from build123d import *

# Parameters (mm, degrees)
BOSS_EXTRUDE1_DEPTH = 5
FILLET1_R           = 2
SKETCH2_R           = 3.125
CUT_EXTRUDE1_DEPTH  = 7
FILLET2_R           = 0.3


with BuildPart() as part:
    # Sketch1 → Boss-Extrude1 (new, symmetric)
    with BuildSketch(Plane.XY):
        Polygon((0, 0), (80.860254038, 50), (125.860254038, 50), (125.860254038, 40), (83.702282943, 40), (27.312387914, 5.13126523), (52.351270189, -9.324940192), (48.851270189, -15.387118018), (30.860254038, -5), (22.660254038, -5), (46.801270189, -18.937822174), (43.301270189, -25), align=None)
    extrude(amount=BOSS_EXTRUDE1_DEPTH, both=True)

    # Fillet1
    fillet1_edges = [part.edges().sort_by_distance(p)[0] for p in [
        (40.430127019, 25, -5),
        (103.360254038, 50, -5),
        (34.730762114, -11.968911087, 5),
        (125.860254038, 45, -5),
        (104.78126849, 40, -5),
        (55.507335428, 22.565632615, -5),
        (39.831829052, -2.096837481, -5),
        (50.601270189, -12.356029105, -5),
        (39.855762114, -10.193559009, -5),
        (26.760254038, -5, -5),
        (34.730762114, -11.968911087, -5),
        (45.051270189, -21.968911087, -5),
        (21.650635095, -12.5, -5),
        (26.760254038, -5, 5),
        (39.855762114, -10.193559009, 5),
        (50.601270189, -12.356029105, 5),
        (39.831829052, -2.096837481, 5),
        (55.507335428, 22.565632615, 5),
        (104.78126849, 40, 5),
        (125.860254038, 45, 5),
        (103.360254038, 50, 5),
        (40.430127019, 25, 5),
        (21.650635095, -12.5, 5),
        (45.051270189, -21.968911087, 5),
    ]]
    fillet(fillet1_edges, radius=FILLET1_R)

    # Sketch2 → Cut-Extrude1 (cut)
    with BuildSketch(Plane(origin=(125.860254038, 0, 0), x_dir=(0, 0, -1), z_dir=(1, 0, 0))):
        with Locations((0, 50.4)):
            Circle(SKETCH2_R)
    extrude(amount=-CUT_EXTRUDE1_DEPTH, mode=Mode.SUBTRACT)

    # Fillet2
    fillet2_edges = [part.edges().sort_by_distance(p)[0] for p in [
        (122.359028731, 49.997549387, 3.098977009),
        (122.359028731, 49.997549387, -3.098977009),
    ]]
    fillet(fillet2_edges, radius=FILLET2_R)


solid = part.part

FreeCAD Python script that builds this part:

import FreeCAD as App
import Part
import Sketcher
from FreeCAD import Vector
Q = App.Units.Quantity


def edges_at(feature, points):
    """Names of the edges that pass closest to the given points."""
    edges = feature.Shape.Edges
    near = lambda p: min(range(len(edges)), key=lambda i: edges[i].distToShape(Part.Vertex(*p))[0])
    return sorted({f"Edge{near(p) + 1}" for p in points})

doc = App.newDocument("Part")
params = doc.addObject("Spreadsheet::Sheet", "Params")
for row, (alias, value) in enumerate([
    ("sketch1_width", "45 mm"),
    ("sketch1_height", "10 mm"),
    ("sketch1_length", "50 mm"),
    ("sketch1_length2", "7 mm"),
    ("sketch1_width2", "8.2 mm"),
    ("pad1_length", "10 mm"),
    ("fillet_radius", "2 mm"),
    ("sketch2_diameter", "6.25 mm"),
    ("pocket1_length", "7 mm"),
    ("fillet2_radius", "0.3 mm"),
], start=1):
    params.set(f"A{row}", alias)
    params.set(f"B{row}", "=" + value)
    params.setAlias(f"B{row}", alias)

body = doc.addObject("PartDesign::Body", "Body")

# Sketch on XY plane
sketch1 = doc.addObject("Sketcher::SketchObject", "Sketch")
body.addObject(sketch1)
sketch1.AttachmentSupport = (doc.XY_Plane, [""])
sketch1.MapMode = "FlatFace"
sketch1.addGeometry([
    Part.LineSegment(Vector(81, 50, 0), Vector(0, 0, 0)),  # 0
    Part.LineSegment(Vector(0, 0, 0), Vector(43, -25, 0)),  # 1
    Part.LineSegment(Vector(43, -25, 0), Vector(47, -19, 0)),  # 2
    Part.LineSegment(Vector(47, -19, 0), Vector(23, -5, 0)),  # 3
    Part.LineSegment(Vector(23, -5, 0), Vector(31, -5, 0)),  # 4
    Part.LineSegment(Vector(31, -5, 0), Vector(49, -15, 0)),  # 5
    Part.LineSegment(Vector(49, -15, 0), Vector(52, -9, 0)),  # 6
    Part.LineSegment(Vector(52, -9, 0), Vector(27, 5, 0)),  # 7
    Part.LineSegment(Vector(27, 5, 0), Vector(84, 40, 0)),  # 8
    Part.LineSegment(Vector(84, 40, 0), Vector(126, 40, 0)),  # 9
    Part.LineSegment(Vector(126, 40, 0), Vector(126, 50, 0)),  # 10
    Part.LineSegment(Vector(126, 50, 0), Vector(81, 50, 0)),  # 11
], False)
sketch1.addConstraint([
    Sketcher.Constraint("Coincident", 0, 2, 1, 1),
    Sketcher.Constraint("Coincident", 1, 2, 2, 1),
    Sketcher.Constraint("Coincident", 2, 2, 3, 1),
    Sketcher.Constraint("Coincident", 3, 2, 4, 1),
    Sketcher.Constraint("Coincident", 4, 2, 5, 1),
    Sketcher.Constraint("Coincident", 5, 2, 6, 1),
    Sketcher.Constraint("Coincident", 6, 2, 7, 1),
    Sketcher.Constraint("Coincident", 7, 2, 8, 1),
    Sketcher.Constraint("Coincident", 8, 2, 9, 1),
    Sketcher.Constraint("Coincident", 9, 2, 10, 1),
    Sketcher.Constraint("Coincident", 10, 2, 11, 1),
    Sketcher.Constraint("Coincident", 11, 2, 0, 1),
    Sketcher.Constraint("Horizontal", 4),
    Sketcher.Constraint("Horizontal", 9),
    Sketcher.Constraint("Vertical", 10),
    Sketcher.Constraint("Horizontal", 11),
    Sketcher.Constraint("Coincident", 0, 2, -1, 1),
    Sketcher.Constraint("Perpendicular", 1, 2),
    Sketcher.Constraint("Perpendicular", 2, 3),
    Sketcher.Constraint("Parallel", 3, 5),
    Sketcher.Constraint("Perpendicular", 5, 6),
    Sketcher.Constraint("Perpendicular", 6, 7),
    Sketcher.Constraint("Parallel", 0, 8),
    Sketcher.Constraint("Equal", 2, 6),
    Sketcher.Constraint("DistanceX", 11, 2, 11, 1, 45.0),
    Sketcher.Constraint("DistanceY", 10, 1, 10, 2, 10.0),
    Sketcher.Constraint("Angle", 1, Q("-30 deg")),
    Sketcher.Constraint("Distance", 1, 50.0),
    Sketcher.Constraint("Distance", 2, 7.0),
    Sketcher.Constraint("DistanceX", 4, 1, 4, 2, 8.2),
    Sketcher.Constraint("DistanceY", 3, 2, -1, 1, 5.0),
    Sketcher.Constraint("DistanceY", -1, 1, 8, 2, 40.0),
    Sketcher.Constraint("DistanceX", 2, 2, 5, 2, 2.05),
    Sketcher.Constraint("Distance", 0, 95.070399),
    Sketcher.Constraint("DistanceX", 9, 1, 9, 2, 42.157971),
])
sketch1.setExpression("Constraints[24]", "Params.sketch1_width")
sketch1.setExpression("Constraints[25]", "Params.sketch1_height")
sketch1.setExpression("Constraints[27]", "Params.sketch1_length")
sketch1.setExpression("Constraints[28]", "Params.sketch1_length2")
sketch1.setExpression("Constraints[29]", "Params.sketch1_width2")
pad1 = doc.addObject("PartDesign::Pad", "Pad")
body.addObject(pad1)
pad1.Profile = sketch1
pad1.setExpression("Length", "Params.pad1_length")
pad1.Midplane = True
doc.recompute()

fillet = doc.addObject("PartDesign::Fillet", "Fillet")
body.addObject(fillet)
fillet.Base = (pad1, edges_at(pad1, [
    (40.43, 25, -5),
    (103.36, 50, -5),
    (34.731, -11.969, 5),
    (125.86, 45, -5),
    (104.781, 40, -5),
    (55.507, 22.566, -5),
    (39.832, -2.097, -5),
    (50.601, -12.356, -5),
    (39.856, -10.194, -5),
    (26.76, -5, -5),
    (34.731, -11.969, -5),
    (45.051, -21.969, -5),
    (21.651, -12.5, -5),
    (26.76, -5, 5),
    (39.856, -10.194, 5),
    (50.601, -12.356, 5),
    (39.832, -2.097, 5),
    (55.507, 22.566, 5),
    (104.781, 40, 5),
    (125.86, 45, 5),
    (103.36, 50, 5),
    (40.43, 25, 5),
    (21.651, -12.5, 5),
    (45.051, -21.969, 5),
]))
fillet.setExpression("Radius", "Params.fillet_radius")

# Sketch on YZ plane
sketch2 = doc.addObject("Sketcher::SketchObject", "Sketch001")
body.addObject(sketch2)
sketch2.AttachmentSupport = (doc.YZ_Plane, [""])
sketch2.MapMode = "FlatFace"
sketch2.AttachmentOffset = App.Placement(Vector(0, 0, 125.860254), App.Rotation())
sketch2.addGeometry(Part.Circle(Vector(50.4, 0, 0), Vector(0, 0, 1), 3.1), False)
sketch2.addConstraint([
    Sketcher.Constraint("PointOnObject", 0, 3, -1),
    Sketcher.Constraint("Diameter", 0, 6.25),
    Sketcher.Constraint("DistanceX", -1, 1, 0, 3, 50.4),
])
sketch2.setExpression("Constraints[1]", "Params.sketch2_diameter")
pocket1 = doc.addObject("PartDesign::Pocket", "Pocket")
body.addObject(pocket1)
pocket1.Profile = sketch2
pocket1.setExpression("Length", "Params.pocket1_length")
doc.recompute()

fillet2 = doc.addObject("PartDesign::Fillet", "Fillet001")
body.addObject(fillet2)
fillet2.Base = (pocket1, edges_at(pocket1, [(122.359, 49.998, 3.099), (122.359, 49.998, -3.099)]))
fillet2.setExpression("Radius", "Params.fillet2_radius")

doc.recompute()
